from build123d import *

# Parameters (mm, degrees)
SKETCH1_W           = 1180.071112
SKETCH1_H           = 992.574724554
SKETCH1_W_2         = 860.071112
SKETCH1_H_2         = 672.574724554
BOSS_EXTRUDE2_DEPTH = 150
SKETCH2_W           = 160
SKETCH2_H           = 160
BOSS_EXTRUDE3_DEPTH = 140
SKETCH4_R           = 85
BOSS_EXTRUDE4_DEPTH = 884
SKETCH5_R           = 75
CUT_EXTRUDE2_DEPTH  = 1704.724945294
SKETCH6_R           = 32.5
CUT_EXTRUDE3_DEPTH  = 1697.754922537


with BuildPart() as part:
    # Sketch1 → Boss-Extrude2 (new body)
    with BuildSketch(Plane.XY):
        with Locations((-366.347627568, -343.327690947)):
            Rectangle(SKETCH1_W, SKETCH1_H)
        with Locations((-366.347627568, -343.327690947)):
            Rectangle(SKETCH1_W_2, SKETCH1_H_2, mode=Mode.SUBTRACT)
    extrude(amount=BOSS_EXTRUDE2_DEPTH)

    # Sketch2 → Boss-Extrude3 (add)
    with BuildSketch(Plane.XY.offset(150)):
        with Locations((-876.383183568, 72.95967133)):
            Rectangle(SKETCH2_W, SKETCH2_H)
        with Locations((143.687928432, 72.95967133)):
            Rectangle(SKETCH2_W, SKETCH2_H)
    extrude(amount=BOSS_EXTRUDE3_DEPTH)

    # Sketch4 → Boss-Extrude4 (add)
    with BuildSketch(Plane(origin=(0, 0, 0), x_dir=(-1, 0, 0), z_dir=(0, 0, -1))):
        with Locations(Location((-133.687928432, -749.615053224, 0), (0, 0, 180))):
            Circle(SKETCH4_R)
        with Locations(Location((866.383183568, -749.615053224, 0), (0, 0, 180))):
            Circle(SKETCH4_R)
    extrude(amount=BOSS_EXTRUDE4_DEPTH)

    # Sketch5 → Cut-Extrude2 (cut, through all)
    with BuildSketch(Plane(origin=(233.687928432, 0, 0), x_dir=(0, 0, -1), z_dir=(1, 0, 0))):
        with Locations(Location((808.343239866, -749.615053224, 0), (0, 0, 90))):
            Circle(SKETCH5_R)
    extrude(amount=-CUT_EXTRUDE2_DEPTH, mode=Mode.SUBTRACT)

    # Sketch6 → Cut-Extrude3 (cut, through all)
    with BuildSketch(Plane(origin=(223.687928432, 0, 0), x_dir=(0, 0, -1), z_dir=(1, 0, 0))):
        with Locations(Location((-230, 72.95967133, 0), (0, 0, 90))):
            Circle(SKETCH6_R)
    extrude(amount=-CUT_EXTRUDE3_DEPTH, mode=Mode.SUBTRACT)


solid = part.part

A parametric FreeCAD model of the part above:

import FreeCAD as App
import Part
import Sketcher
Q = App.Units.Quantity

doc = App.newDocument("Part")
body = doc.addObject("PartDesign::Body", "Body")

# Sketch on XY plane
sketch1 = body.newObject("Sketcher::SketchObject", "Sketch")
sketch1.AttachmentSupport = (doc.getObject("XY_Plane"), [""])
sketch1.MapMode = "FlatFace"
sketch1.addGeometry(Part.LineSegment(App.Vector(-956, 153, 0), App.Vector(-956, -840, 0)), False)
sketch1.addGeometry(Part.LineSegment(App.Vector(-956, -840, 0), App.Vector(224, -840, 0)), False)
sketch1.addGeometry(Part.LineSegment(App.Vector(224, -840, 0), App.Vector(224, 153, 0)), False)
sketch1.addGeometry(Part.LineSegment(App.Vector(224, 153, 0), App.Vector(-956, 153, 0)), False)
sketch1.addGeometry(Part.LineSegment(App.Vector(64, -680, 0), App.Vector(-796, -680, 0)), False)
sketch1.addGeometry(Part.LineSegment(App.Vector(-796, -680, 0), App.Vector(-796, -7, 0)), False)
sketch1.addGeometry(Part.LineSegment(App.Vector(-796, -7, 0), App.Vector(64, -7, 0)), False)
sketch1.addGeometry(Part.LineSegment(App.Vector(64, -7, 0), App.Vector(64, -680, 0)), False)
sketch1.addConstraint(Sketcher.Constraint("Coincident", 0, 2, 1, 1))
sketch1.addConstraint(Sketcher.Constraint("Coincident", 1, 2, 2, 1))
sketch1.addConstraint(Sketcher.Constraint("Coincident", 2, 2, 3, 1))
sketch1.addConstraint(Sketcher.Constraint("Coincident", 3, 2, 0, 1))
sketch1.addConstraint(Sketcher.Constraint("Coincident", 4, 2, 5, 1))
sketch1.addConstraint(Sketcher.Constraint("Coincident", 5, 2, 6, 1))
sketch1.addConstraint(Sketcher.Constraint("Coincident", 6, 2, 7, 1))
sketch1.addConstraint(Sketcher.Constraint("Coincident", 7, 2, 4, 1))
sketch1.addConstraint(Sketcher.Constraint("Vertical", 0))
sketch1.addConstraint(Sketcher.Constraint("Horizontal", 1))
sketch1.addConstraint(Sketcher.Constraint("Vertical", 2))
sketch1.addConstraint(Sketcher.Constraint("Horizontal", 3))
sketch1.addConstraint(Sketcher.Constraint("Horizontal", 4))
sketch1.addConstraint(Sketcher.Constraint("Vertical", 5))
sketch1.addConstraint(Sketcher.Constraint("Horizontal", 6))
sketch1.addConstraint(Sketcher.Constraint("Vertical", 7))
sketch1.addConstraint(Sketcher.Constraint("DistanceX", 0, 2, 4, 2, Q("160 mm")))
sketch1.addConstraint(Sketcher.Constraint("DistanceY", 0, 2, 4, 2, Q("160 mm")))
sketch1.addConstraint(Sketcher.Constraint("DistanceY", 5, 2, 3, 2, Q("160 mm")))
sketch1.addConstraint(Sketcher.Constraint("DistanceX", 6, 2, 2, 2, Q("160 mm")))
sketch1.addConstraint(Sketcher.Constraint("DistanceX", 1, 1, 1, 2, Q("1180.071112 mm")))
sketch1.addConstraint(Sketcher.Constraint("DistanceY", 0, 2, 0, 1, Q("992.574725 mm")))
sketch1.addConstraint(Sketcher.Constraint("DistanceX", -1, 1, 1, 2, Q("223.687928 mm")))
sketch1.addConstraint(Sketcher.Constraint("DistanceY", -1, 1, 2, 2, Q("152.959671 mm")))
pad1 = body.newObject("PartDesign::Pad", "Pad")
pad1.Profile = sketch1
pad1.Length = 150

# Sketch on XY plane
sketch2 = body.newObject("Sketcher::SketchObject", "Sketch001")
sketch2.AttachmentSupport = (doc.getObject("XY_Plane"), [""])
sketch2.MapMode = "FlatFace"
sketch2.AttachmentOffset = App.Placement(App.Vector(0, 0, 150), App.Rotation())
sketch2.addGeometry(Part.LineSegment(App.Vector(-956, 153, 0), App.Vector(-956, -7, 0)), False)
sketch2.addGeometry(Part.LineSegment(App.Vector(-956, -7, 0), App.Vector(-796, -7, 0)), False)
sketch2.addGeometry(Part.LineSegment(App.Vector(-796, -7, 0), App.Vector(-796, 153, 0)), False)
sketch2.addGeometry(Part.LineSegment(App.Vector(-796, 153, 0), App.Vector(-956, 153, 0)), False)
sketch2.addGeometry(Part.LineSegment(App.Vector(64, 153, 0), App.Vector(64, -7, 0)), False)
sketch2.addGeometry(Part.LineSegment(App.Vector(64, -7, 0), App.Vector(224, -7, 0)), False)
sketch2.addGeometry(Part.LineSegment(App.Vector(224, -7, 0), App.Vector(224, 153, 0)), False)
sketch2.addGeometry(Part.LineSegment(App.Vector(224, 153, 0), App.Vector(64, 153, 0)), False)
sketch2.addConstraint(Sketcher.Constraint("Coincident", 0, 2, 1, 1))
sketch2.addConstraint(Sketcher.Constraint("Coincident", 1, 2, 2, 1))
sketch2.addConstraint(Sketcher.Constraint("Coincident", 2, 2, 3, 1))
sketch2.addConstraint(Sketcher.Constraint("Coincident", 3, 2, 0, 1))
sketch2.addConstraint(Sketcher.Constraint("Coincident", 4, 2, 5, 1))
sketch2.addConstraint(Sketcher.Constraint("Coincident", 5, 2, 6, 1))
sketch2.addConstraint(Sketcher.Constraint("Coincident", 6, 2, 7, 1))
sketch2.addConstraint(Sketcher.Constraint("Coincident", 7, 2, 4, 1))
sketch2.addConstraint(Sketcher.Constraint("Vertical", 0))
sketch2.addConstraint(Sketcher.Constraint("Horizontal", 1))
sketch2.addConstraint(Sketcher.Constraint("Vertical", 2))
sketch2.addConstraint(Sketcher.Constraint("Horizontal", 3))
sketch2.addConstraint(Sketcher.Constraint("Vertical", 4))
sketch2.addConstraint(Sketcher.Constraint("Horizontal", 5))
sketch2.addConstraint(Sketcher.Constraint("Vertical", 6))
sketch2.addConstraint(Sketcher.Constraint("Horizontal", 7))
sketch2.addConstraint(Sketcher.Constraint("Horizontal", 1, 2, 4, 2))
sketch2.addConstraint(Sketcher.Constraint("Horizontal", 3, 2, 6, 2))
sketch2.addConstraint(Sketcher.Constraint("Equal", 3, 5))
sketch2.addConstraint(Sketcher.Constraint("Equal", 7, 0))
sketch2.addConstraint(Sketcher.Constraint("DistanceX", 1, 1, 1, 2, Q("160 mm")))
sketch2.addConstraint(Sketcher.Constraint("DistanceY", 0, 2, -1, 1, Q("7.040329 mm")))
sketch2.addConstraint(Sketcher.Constraint("DistanceX", -1, 1, 4, 2, Q("63.687928 mm")))
sketch2.addConstraint(Sketcher.Constraint("DistanceX", 0, 2, 5, 2, Q("1180.071112 mm")))
pad2 = body.newObject("PartDesign::Pad", "Pad001")
pad2.Profile = sketch2
pad2.Length = 140

# Sketch on XY plane
sketch3 = body.newObject("Sketcher::SketchObject", "Sketch002")
sketch3.AttachmentSupport = (doc.getObject("XY_Plane"), [""])
sketch3.MapMode = "FlatFace"
sketch3.addGeometry(Part.Circle(App.Vector(134, -750, 0), App.Vector(0, 0, 1), 85), False)
sketch3.addGeometry(Part.Circle(App.Vector(-866, -750, 0), App.Vector(0, 0, 1), 85), False)
sketch3.addConstraint(Sketcher.Constraint("Equal", 0, 1))
sketch3.addConstraint(Sketcher.Constraint("Horizontal", 0, 3, 1, 3))
sketch3.addConstraint(Sketcher.Constraint("Diameter", 0, Q("170 mm")))
sketch3.addConstraint(Sketcher.Constraint("DistanceX", -1, 1, 0, 3, Q("133.687928 mm")))
sketch3.addConstraint(Sketcher.Constraint("DistanceY", 0, 3, -1, 1, Q("749.615053 mm")))
sketch3.addConstraint(Sketcher.Constraint("DistanceX", 1, 3, -1, 1, Q("866.383184 mm")))
pad3 = body.newObject("PartDesign::Pad", "Pad002")
pad3.Profile = sketch3
pad3.Length = 884
pad3.Reversed = True

# Sketch on YZ plane
sketch4 = body.newObject("Sketcher::SketchObject", "Sketch003")
sketch4.AttachmentSupport = (doc.getObject("YZ_Plane"), [""])
sketch4.MapMode = "FlatFace"
sketch4.AttachmentOffset = App.Placement(App.Vector(0, 0, 233.687928), App.Rotation())
sketch4.addGeometry(Part.Circle(App.Vector(-750, -808, 0), App.Vector(0, 0, 1), 75), False)
sketch4.addConstraint(Sketcher.Constraint("Diameter", 0, Q("150 mm")))
sketch4.addConstraint(Sketcher.Constraint("DistanceY", 0, 3, -1, 1, Q("808.34324 mm")))
sketch4.addConstraint(Sketcher.Constraint("DistanceX", 0, 3, -1, 1, Q("749.615053 mm")))
pocket1 = body.newObject("PartDesign::Pocket", "Pocket")
pocket1.Profile = sketch4
pocket1.Type = "ThroughAll"

# Sketch on YZ plane
sketch5 = body.newObject("Sketcher::SketchObject", "Sketch004")
sketch5.AttachmentSupport = (doc.getObject("YZ_Plane"), [""])
sketch5.MapMode = "FlatFace"
sketch5.AttachmentOffset = App.Placement(App.Vector(0, 0, 223.687928), App.Rotation())
sketch5.addGeometry(Part.Circle(App.Vector(73, 230, 0), App.Vector(0, 0, 1), 32), False)
sketch5.addConstraint(Sketcher.Constraint("Diameter", 0, Q("65 mm")))
sketch5.addConstraint(Sketcher.Constraint("DistanceY", -1, 1, 0, 3, Q("230 mm")))
sketch5.addConstraint(Sketcher.Constraint("DistanceX", -1, 1, 0, 3, Q("72.959671 mm")))
pocket2 = body.newObject("PartDesign::Pocket", "Pocket001")
pocket2.Profile = sketch5
pocket2.Type = "ThroughAll"

doc.recompute()
